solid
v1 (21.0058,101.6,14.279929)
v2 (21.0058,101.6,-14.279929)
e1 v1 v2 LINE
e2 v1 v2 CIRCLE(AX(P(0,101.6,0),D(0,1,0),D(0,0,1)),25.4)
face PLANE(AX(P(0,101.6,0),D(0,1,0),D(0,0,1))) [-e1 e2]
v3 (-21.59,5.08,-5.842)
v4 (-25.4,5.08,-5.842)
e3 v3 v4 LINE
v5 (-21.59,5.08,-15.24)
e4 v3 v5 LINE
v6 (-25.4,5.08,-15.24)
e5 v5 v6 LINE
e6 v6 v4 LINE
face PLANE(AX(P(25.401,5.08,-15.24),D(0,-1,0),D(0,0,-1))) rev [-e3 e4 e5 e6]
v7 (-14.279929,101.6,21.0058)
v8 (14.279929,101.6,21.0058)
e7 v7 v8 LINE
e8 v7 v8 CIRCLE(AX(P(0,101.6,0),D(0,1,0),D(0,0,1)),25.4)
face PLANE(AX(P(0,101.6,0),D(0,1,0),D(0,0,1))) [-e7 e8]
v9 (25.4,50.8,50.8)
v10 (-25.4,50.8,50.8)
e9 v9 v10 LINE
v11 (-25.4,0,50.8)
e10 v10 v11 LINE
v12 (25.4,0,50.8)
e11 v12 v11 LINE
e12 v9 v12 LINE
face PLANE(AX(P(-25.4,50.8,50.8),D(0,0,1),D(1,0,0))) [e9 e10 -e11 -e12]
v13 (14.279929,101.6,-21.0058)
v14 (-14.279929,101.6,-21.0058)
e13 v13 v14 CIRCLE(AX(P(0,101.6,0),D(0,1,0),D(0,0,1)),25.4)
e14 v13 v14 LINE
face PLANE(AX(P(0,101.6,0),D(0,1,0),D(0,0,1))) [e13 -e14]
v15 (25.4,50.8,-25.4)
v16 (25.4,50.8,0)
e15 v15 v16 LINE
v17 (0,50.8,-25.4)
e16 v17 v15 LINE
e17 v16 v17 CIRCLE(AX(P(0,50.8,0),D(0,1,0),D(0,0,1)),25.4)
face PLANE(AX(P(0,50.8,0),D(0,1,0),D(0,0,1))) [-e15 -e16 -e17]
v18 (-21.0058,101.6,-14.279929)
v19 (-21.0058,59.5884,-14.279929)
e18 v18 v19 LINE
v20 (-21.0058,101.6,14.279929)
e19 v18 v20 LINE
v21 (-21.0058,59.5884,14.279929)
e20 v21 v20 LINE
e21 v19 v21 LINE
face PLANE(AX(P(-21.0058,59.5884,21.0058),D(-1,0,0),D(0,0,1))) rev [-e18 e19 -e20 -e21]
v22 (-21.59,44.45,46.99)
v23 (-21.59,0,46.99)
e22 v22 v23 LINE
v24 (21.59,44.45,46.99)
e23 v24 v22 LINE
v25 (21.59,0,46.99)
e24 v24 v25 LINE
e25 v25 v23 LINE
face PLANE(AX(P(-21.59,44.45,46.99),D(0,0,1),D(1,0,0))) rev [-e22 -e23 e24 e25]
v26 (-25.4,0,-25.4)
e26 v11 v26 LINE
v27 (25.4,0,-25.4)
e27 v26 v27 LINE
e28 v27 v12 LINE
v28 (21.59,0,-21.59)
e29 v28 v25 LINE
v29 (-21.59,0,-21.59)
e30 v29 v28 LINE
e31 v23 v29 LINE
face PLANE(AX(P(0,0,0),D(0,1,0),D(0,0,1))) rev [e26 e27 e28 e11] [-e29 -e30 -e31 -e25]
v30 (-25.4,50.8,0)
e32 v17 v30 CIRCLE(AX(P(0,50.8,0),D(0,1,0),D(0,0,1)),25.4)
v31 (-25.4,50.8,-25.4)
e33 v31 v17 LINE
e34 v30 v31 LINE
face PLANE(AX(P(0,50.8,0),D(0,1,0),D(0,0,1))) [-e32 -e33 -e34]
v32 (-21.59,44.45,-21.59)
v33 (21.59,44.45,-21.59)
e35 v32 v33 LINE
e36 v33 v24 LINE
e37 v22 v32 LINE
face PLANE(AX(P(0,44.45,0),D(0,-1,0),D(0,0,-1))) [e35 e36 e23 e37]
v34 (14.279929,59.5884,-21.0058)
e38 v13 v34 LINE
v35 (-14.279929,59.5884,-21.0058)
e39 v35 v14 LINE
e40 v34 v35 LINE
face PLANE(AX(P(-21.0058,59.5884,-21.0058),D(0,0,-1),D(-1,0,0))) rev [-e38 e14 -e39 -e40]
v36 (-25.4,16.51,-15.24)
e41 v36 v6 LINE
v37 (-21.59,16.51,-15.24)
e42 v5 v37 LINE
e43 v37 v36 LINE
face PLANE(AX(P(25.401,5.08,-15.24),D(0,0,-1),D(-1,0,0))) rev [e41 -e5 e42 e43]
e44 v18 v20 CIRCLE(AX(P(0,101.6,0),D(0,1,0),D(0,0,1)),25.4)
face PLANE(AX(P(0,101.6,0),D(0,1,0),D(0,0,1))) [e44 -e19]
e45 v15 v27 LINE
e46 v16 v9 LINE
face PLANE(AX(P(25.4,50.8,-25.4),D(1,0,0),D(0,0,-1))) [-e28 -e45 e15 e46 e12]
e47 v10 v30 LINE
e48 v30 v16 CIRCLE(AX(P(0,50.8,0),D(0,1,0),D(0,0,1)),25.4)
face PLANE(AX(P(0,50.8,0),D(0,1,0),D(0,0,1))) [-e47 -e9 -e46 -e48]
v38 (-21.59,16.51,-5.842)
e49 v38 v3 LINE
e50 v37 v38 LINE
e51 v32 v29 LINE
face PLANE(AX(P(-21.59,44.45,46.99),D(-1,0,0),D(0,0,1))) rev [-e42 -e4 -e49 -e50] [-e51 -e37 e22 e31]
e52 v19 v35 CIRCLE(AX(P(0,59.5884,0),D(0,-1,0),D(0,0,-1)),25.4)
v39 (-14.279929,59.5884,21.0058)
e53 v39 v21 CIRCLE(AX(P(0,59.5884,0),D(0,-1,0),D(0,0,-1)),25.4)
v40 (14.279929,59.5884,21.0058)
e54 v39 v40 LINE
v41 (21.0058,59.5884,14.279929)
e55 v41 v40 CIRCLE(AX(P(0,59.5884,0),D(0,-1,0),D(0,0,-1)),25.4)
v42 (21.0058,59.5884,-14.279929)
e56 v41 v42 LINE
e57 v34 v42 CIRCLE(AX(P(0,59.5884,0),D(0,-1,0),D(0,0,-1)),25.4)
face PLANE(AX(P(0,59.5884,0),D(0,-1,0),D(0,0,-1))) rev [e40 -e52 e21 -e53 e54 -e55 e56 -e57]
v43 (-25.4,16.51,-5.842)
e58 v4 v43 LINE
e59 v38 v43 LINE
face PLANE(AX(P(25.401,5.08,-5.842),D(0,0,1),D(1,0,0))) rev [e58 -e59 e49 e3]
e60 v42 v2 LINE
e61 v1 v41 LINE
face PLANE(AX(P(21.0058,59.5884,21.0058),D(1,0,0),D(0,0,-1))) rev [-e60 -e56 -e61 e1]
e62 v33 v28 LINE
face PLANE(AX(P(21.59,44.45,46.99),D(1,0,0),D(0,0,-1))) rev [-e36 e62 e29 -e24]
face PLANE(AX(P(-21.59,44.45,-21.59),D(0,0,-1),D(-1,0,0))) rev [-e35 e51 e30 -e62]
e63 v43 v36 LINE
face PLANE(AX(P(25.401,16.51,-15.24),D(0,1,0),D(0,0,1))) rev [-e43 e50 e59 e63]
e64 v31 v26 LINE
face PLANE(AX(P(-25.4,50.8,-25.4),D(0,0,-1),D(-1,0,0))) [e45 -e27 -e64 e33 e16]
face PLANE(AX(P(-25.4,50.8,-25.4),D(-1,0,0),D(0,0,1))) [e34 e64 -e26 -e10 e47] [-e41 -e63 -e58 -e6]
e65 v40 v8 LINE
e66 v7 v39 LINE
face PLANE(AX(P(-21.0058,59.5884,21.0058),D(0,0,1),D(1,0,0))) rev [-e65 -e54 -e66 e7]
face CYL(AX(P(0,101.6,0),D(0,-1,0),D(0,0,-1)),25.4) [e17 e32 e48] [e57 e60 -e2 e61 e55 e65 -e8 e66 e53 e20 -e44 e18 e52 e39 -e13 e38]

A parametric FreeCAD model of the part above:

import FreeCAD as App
import Part
import Sketcher
from FreeCAD import Vector
Q = App.Units.Quantity


def add_polygon(sketch, points):
    """Adds a closed chain of lines whose ends are joined by coincident constraints."""
    first, n = sketch.GeometryCount, len(points)
    for a, b in zip(points, points[1:] + points[:1]):
        sketch.addGeometry(Part.LineSegment(App.Vector(*a, 0), App.Vector(*b, 0)), False)
    for i in range(n):
        sketch.addConstraint(Sketcher.Constraint("Coincident", first + i, 2, first + (i + 1) % n, 1))

doc = App.newDocument("Part")
params = doc.addObject("Spreadsheet::Sheet", "Params")
for row, (alias, value) in enumerate([
    ("sketch1_diameter", "2 in"),
    ("pad1_length", "4 in"),
    ("sketch2_width", "1.654 in"),
    ("pocket1_length", "1.654 in"),
    ("sketch3_width", "2 in"),
    ("sketch3_height", "3 in"),
    ("pad2_length", "2 in"),
    ("sketch4_width", "1.7 in"),
    ("sketch4_height", "2.7 in"),
    ("pocket2_length", "1.75 in"),
    ("sketch5_width", "0.45 in"),
    ("sketch5_height", "0.37 in"),
], start=1):
    params.set(f"A{row}", alias)
    params.set(f"B{row}", "=" + value)
    params.setAlias(f"B{row}", alias)

body = doc.addObject("PartDesign::Body", "Body")

# Sketch on XZ plane
sketch1 = doc.addObject("Sketcher::SketchObject", "Sketch")
body.addObject(sketch1)
sketch1.AttachmentSupport = (doc.XZ_Plane, [""])
sketch1.MapMode = "FlatFace"
sketch1.addGeometry(Part.Circle(Vector(0, 0, 0), Vector(0, 0, 1), 25), False)
sketch1.addConstraint([
    Sketcher.Constraint("Coincident", 0, 3, -1, 1),
    Sketcher.Constraint("Diameter", 0, Q("2 in")),
])
sketch1.setExpression("Constraints[1]", "Params.sketch1_diameter")
pad1 = doc.addObject("PartDesign::Pad", "Pad")
body.addObject(pad1)
pad1.Profile = sketch1
pad1.setExpression("Length", "Params.pad1_length")
pad1.Reversed = True

# Sketch on XZ plane
sketch2 = doc.addObject("Sketcher::SketchObject", "Sketch001")
body.addObject(sketch2)
sketch2.AttachmentSupport = (doc.XZ_Plane, [""])
sketch2.MapMode = "FlatFace"
sketch2.AttachmentOffset = App.Placement(Vector(0, 0, -4 * 25.4), App.Rotation())
add_polygon(sketch2, [(-21, -21), (-21, 21), (21, 21), (21, -21)])  # lines 0-3
sketch2.addConstraint([
    Sketcher.Constraint("Vertical", 0),
    Sketcher.Constraint("Horizontal", 1),
    Sketcher.Constraint("Vertical", 2),
    Sketcher.Constraint("Horizontal", 3),
    Sketcher.Constraint("Symmetric", 0, 2, 2, 2, -1, 1),
    Sketcher.Constraint("Equal", 3, 0),
    Sketcher.Constraint("DistanceX", 1, 1, 1, 2, Q("1.654 in")),
])
sketch2.setExpression("Constraints[10]", "Params.sketch2_width")
pocket1 = doc.addObject("PartDesign::Pocket", "Pocket")
body.addObject(pocket1)
pocket1.Profile = sketch2
pocket1.setExpression("Length", "Params.pocket1_length")
pocket1.Reversed = True

# Sketch on XZ plane
sketch3 = doc.addObject("Sketcher::SketchObject", "Sketch002")
body.addObject(sketch3)
sketch3.AttachmentSupport = (doc.XZ_Plane, [""])
sketch3.MapMode = "FlatFace"
add_polygon(sketch3, [(-25, 51), (-25, -25), (25, -25), (25, 51)])  # lines 0-3
sketch3.addConstraint([
    Sketcher.Constraint("Vertical", 0),
    Sketcher.Constraint("Horizontal", 1),
    Sketcher.Constraint("Vertical", 2),
    Sketcher.Constraint("Horizontal", 3),
    Sketcher.Constraint("DistanceX", 1, 1, 1, 2, Q("2 in")),
    Sketcher.Constraint("DistanceY", 0, 2, 0, 1, Q("3 in")),
    Sketcher.Constraint("DistanceX", 0, 2, -1, 1, Q("1 in")),
    Sketcher.Constraint("DistanceY", 0, 2, -1, 1, Q("1 in")),
])
sketch3.setExpression("Constraints[8]", "Params.sketch3_width")
sketch3.setExpression("Constraints[9]", "Params.sketch3_height")
pad2 = doc.addObject("PartDesign::Pad", "Pad001")
body.addObject(pad2)
pad2.Profile = sketch3
pad2.setExpression("Length", "Params.pad2_length")
pad2.Reversed = True

# Sketch on XZ plane
sketch4 = doc.addObject("Sketcher::SketchObject", "Sketch003")
body.addObject(sketch4)
sketch4.AttachmentSupport = (doc.XZ_Plane, [""])
sketch4.MapMode = "FlatFace"
add_polygon(sketch4, [(-22, 47), (-22, -22), (22, -22), (22, 47)])  # lines 0-3
sketch4.addConstraint([
    Sketcher.Constraint("Vertical", 0),
    Sketcher.Constraint("Horizontal", 1),
    Sketcher.Constraint("Vertical", 2),
    Sketcher.Constraint("Horizontal", 3),
    Sketcher.Constraint("DistanceX", 1, 1, 1, 2, Q("1.7 in")),
    Sketcher.Constraint("DistanceY", 0, 2, 0, 1, Q("2.7 in")),
    Sketcher.Constraint("DistanceX", 0, 2, -1, 1, Q("0.85 in")),
    Sketcher.Constraint("DistanceY", 0, 2, -1, 1, Q("0.85 in")),
])
sketch4.setExpression("Constraints[8]", "Params.sketch4_width")
sketch4.setExpression("Constraints[9]", "Params.sketch4_height")
pocket2 = doc.addObject("PartDesign::Pocket", "Pocket001")
body.addObject(pocket2)
pocket2.Profile = sketch4
pocket2.setExpression("Length", "Params.pocket2_length")

# Sketch on YZ plane
sketch5 = doc.addObject("Sketcher::SketchObject", "Sketch004")
body.addObject(sketch5)
sketch5.AttachmentSupport = (doc.YZ_Plane, [""])
sketch5.MapMode = "FlatFace"
sketch5.AttachmentOffset = App.Placement(Vector(0, 0, -1 * 25.4), App.Rotation())
add_polygon(sketch5, [(17, -15), (5, -15), (5, -6), (17, -6)])  # lines 0-3
sketch5.addConstraint([
    Sketcher.Constraint("Horizontal", 0),
    Sketcher.Constraint("Vertical", 1),
    Sketcher.Constraint("Horizontal", 2),
    Sketcher.Constraint("Vertical", 3),
    Sketcher.Constraint("DistanceX", 0, 2, 0, 1, Q("0.45 in")),
    Sketcher.Constraint("DistanceY", 1, 1, 1, 2, Q("0.37 in")),
    Sketcher.Constraint("DistanceX", -1, 1, 0, 2, Q("0.2 in")),
    Sketcher.Constraint("DistanceY", 0, 2, -1, 1, Q("0.6 in")),
])
sketch5.setExpression("Constraints[8]", "Params.sketch5_width")
sketch5.setExpression("Constraints[9]", "Params.sketch5_height")
pocket3 = doc.addObject("PartDesign::Pocket", "Pocket002")
body.addObject(pocket3)
pocket3.Profile = sketch5
pocket3.Type = "UpToFirst"
pocket3.Reversed = True

doc.recompute()
